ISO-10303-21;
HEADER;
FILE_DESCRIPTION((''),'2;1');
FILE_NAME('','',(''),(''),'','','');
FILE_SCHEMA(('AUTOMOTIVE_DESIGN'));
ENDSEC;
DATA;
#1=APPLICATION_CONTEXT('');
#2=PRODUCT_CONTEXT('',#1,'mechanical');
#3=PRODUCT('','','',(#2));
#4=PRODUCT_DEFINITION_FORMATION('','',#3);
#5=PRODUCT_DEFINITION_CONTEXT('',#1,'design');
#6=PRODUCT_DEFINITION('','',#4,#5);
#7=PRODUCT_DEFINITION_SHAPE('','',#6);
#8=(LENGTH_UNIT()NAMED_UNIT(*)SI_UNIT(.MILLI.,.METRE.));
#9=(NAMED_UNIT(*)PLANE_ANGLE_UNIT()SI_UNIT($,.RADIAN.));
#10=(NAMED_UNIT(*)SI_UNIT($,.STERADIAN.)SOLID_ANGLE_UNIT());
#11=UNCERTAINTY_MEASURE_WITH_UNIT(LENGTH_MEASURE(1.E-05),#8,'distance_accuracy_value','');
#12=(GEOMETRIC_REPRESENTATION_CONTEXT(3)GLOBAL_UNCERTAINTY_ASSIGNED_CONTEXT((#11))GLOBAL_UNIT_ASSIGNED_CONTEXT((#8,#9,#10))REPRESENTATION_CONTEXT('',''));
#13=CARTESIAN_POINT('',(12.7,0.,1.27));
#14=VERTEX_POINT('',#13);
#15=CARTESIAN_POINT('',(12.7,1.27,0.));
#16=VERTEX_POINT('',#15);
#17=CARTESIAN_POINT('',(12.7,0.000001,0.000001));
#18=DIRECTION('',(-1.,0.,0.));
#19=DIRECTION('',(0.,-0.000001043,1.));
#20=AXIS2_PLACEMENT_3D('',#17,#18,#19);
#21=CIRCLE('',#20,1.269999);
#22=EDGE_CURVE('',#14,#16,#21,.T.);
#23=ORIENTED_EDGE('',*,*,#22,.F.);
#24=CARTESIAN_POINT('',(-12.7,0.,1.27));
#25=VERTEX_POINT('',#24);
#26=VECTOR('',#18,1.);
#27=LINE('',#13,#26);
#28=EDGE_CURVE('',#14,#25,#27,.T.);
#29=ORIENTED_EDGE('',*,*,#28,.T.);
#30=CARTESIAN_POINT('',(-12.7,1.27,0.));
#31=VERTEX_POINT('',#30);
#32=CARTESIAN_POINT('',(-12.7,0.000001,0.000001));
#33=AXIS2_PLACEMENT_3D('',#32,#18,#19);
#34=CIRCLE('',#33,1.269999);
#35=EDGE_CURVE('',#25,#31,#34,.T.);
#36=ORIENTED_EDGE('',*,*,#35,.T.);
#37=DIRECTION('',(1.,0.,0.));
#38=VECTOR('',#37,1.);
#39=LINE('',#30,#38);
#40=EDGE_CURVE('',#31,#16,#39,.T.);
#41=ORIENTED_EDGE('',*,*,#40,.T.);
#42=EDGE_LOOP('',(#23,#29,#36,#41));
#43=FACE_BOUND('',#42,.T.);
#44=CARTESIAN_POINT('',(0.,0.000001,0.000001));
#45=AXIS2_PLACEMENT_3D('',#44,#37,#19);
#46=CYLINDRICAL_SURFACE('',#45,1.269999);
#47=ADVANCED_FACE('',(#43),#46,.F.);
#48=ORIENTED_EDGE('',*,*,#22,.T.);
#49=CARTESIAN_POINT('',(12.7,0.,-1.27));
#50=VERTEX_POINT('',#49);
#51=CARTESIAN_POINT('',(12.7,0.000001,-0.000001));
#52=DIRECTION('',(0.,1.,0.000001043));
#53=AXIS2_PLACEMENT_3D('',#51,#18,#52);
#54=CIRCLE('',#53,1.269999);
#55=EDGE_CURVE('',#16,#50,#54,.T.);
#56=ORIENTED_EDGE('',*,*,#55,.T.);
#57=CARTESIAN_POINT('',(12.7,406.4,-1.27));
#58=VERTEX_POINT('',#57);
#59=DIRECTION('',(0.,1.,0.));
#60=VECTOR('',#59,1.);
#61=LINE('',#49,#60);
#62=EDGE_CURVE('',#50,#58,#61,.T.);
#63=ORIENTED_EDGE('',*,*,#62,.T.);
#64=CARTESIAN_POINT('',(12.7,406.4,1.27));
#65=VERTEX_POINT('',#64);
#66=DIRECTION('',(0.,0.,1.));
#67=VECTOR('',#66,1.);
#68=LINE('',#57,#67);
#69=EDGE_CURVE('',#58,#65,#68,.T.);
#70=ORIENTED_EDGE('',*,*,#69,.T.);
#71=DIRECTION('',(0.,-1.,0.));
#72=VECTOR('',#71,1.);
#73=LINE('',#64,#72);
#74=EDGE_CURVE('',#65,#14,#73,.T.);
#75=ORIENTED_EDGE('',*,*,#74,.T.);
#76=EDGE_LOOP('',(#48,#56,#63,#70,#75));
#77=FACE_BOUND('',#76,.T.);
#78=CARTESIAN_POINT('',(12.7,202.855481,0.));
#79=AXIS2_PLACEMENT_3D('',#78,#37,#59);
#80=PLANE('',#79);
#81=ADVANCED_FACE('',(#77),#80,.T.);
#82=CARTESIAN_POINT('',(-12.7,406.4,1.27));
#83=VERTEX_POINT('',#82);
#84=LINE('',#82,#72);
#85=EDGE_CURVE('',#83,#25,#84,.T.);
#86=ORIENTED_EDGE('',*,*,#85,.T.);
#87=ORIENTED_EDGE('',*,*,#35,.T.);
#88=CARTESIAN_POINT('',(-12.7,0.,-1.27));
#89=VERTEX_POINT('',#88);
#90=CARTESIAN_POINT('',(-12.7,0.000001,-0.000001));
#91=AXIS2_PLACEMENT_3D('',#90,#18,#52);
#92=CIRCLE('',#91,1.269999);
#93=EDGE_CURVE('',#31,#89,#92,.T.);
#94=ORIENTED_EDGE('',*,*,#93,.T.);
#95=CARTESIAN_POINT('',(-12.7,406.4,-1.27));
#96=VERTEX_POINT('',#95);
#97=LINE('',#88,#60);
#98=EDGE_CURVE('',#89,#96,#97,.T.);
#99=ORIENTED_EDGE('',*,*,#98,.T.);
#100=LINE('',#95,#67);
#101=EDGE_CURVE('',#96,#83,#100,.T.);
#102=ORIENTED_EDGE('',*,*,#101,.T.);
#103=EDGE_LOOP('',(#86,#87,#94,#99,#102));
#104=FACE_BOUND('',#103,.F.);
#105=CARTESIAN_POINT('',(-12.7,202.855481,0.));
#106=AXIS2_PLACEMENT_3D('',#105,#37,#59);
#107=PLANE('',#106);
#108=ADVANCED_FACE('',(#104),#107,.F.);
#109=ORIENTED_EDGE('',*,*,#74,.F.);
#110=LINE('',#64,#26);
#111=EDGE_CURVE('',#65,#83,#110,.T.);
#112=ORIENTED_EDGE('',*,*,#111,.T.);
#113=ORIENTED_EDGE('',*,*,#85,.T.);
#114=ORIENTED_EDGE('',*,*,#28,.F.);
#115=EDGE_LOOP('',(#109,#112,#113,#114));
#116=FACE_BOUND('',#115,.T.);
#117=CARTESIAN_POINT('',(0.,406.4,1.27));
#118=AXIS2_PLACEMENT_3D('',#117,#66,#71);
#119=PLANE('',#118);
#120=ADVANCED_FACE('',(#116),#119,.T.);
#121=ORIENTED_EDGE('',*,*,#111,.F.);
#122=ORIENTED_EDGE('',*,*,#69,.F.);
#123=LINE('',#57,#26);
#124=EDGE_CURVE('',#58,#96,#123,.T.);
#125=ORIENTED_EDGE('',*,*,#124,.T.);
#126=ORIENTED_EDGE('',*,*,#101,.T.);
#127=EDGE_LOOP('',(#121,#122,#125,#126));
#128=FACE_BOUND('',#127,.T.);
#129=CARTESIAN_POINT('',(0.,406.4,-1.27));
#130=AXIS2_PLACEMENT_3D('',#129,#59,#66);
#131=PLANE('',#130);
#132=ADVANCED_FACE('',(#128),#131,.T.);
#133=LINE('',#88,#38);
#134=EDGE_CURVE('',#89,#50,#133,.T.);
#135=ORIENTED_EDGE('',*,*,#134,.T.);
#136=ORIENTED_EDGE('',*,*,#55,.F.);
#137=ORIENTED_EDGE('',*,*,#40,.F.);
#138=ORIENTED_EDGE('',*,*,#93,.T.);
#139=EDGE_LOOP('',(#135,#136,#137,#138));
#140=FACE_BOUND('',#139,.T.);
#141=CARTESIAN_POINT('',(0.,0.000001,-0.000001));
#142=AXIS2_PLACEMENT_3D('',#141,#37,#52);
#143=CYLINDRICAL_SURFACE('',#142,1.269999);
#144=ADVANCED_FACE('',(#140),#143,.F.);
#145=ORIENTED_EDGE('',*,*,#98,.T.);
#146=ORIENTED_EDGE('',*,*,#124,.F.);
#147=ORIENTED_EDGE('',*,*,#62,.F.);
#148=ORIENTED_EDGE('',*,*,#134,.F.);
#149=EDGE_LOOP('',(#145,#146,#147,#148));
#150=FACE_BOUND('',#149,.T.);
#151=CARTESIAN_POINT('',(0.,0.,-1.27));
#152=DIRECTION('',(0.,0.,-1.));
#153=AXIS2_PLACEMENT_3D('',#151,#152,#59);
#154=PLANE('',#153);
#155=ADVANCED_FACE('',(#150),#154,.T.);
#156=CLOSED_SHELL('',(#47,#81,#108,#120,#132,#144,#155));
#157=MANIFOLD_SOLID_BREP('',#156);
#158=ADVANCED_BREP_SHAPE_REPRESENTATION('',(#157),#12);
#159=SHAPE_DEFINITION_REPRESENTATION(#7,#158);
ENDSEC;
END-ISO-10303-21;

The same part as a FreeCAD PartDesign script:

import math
import FreeCAD as App
import Part
import Sketcher
Q = App.Units.Quantity

doc = App.newDocument("Part")
body = doc.addObject("PartDesign::Body", "Body")

# Sketch on YZ plane
sketch1 = doc.addObject("Sketcher::SketchObject", "Sketch")
body.addObject(sketch1)
sketch1.AttachmentSupport = (doc.YZ_Plane, [""])
sketch1.MapMode = "FlatFace"
sketch1.addGeometry([
    Part.ArcOfCircle(Part.Circle(App.Vector(0, 0, 0), App.Vector(0, 0, 1), 1.3), math.radians(0), math.radians(90)),  # 0
    Part.ArcOfCircle(Part.Circle(App.Vector(0, 0, 0), App.Vector(0, 0, 1), 1.3), math.radians(-90), math.radians(0)),  # 1
    Part.LineSegment(App.Vector(0, -1.3, 0), App.Vector(406.4, -1.3, 0)),  # 2
    Part.LineSegment(App.Vector(406.4, -1.3, 0), App.Vector(406.4, 1.3, 0)),  # 3
    Part.LineSegment(App.Vector(406.4, 1.3, 0), App.Vector(0, 1.3, 0)),  # 4
], False)
sketch1.addConstraint([
    Sketcher.Constraint("Coincident", 0, 1, 1, 2),
    Sketcher.Constraint("Tangent", 1, 1, 2, 1),
    Sketcher.Constraint("Coincident", 2, 2, 3, 1),
    Sketcher.Constraint("Coincident", 3, 2, 4, 1),
    Sketcher.Constraint("Tangent", 4, 2, 0, 2),
    Sketcher.Constraint("Horizontal", 2),
    Sketcher.Constraint("Vertical", 3),
    Sketcher.Constraint("Horizontal", 4),
    Sketcher.Constraint("Coincident", 0, 3, -1, 1),
    Sketcher.Constraint("Coincident", 1, 3, -1, 1),
    Sketcher.Constraint("PointOnObject", 0, 1, -1),
    Sketcher.Constraint("DistanceX", 2, 1, 2, 2, Q("16 in")),
    Sketcher.Constraint("Radius", 0, Q("0.0499999 in")),
])
pad1 = doc.addObject("PartDesign::Pad", "Pad")
body.addObject(pad1)
pad1.Profile = sketch1
pad1.Length = Q("1 in")
pad1.Midplane = True

doc.recompute()
